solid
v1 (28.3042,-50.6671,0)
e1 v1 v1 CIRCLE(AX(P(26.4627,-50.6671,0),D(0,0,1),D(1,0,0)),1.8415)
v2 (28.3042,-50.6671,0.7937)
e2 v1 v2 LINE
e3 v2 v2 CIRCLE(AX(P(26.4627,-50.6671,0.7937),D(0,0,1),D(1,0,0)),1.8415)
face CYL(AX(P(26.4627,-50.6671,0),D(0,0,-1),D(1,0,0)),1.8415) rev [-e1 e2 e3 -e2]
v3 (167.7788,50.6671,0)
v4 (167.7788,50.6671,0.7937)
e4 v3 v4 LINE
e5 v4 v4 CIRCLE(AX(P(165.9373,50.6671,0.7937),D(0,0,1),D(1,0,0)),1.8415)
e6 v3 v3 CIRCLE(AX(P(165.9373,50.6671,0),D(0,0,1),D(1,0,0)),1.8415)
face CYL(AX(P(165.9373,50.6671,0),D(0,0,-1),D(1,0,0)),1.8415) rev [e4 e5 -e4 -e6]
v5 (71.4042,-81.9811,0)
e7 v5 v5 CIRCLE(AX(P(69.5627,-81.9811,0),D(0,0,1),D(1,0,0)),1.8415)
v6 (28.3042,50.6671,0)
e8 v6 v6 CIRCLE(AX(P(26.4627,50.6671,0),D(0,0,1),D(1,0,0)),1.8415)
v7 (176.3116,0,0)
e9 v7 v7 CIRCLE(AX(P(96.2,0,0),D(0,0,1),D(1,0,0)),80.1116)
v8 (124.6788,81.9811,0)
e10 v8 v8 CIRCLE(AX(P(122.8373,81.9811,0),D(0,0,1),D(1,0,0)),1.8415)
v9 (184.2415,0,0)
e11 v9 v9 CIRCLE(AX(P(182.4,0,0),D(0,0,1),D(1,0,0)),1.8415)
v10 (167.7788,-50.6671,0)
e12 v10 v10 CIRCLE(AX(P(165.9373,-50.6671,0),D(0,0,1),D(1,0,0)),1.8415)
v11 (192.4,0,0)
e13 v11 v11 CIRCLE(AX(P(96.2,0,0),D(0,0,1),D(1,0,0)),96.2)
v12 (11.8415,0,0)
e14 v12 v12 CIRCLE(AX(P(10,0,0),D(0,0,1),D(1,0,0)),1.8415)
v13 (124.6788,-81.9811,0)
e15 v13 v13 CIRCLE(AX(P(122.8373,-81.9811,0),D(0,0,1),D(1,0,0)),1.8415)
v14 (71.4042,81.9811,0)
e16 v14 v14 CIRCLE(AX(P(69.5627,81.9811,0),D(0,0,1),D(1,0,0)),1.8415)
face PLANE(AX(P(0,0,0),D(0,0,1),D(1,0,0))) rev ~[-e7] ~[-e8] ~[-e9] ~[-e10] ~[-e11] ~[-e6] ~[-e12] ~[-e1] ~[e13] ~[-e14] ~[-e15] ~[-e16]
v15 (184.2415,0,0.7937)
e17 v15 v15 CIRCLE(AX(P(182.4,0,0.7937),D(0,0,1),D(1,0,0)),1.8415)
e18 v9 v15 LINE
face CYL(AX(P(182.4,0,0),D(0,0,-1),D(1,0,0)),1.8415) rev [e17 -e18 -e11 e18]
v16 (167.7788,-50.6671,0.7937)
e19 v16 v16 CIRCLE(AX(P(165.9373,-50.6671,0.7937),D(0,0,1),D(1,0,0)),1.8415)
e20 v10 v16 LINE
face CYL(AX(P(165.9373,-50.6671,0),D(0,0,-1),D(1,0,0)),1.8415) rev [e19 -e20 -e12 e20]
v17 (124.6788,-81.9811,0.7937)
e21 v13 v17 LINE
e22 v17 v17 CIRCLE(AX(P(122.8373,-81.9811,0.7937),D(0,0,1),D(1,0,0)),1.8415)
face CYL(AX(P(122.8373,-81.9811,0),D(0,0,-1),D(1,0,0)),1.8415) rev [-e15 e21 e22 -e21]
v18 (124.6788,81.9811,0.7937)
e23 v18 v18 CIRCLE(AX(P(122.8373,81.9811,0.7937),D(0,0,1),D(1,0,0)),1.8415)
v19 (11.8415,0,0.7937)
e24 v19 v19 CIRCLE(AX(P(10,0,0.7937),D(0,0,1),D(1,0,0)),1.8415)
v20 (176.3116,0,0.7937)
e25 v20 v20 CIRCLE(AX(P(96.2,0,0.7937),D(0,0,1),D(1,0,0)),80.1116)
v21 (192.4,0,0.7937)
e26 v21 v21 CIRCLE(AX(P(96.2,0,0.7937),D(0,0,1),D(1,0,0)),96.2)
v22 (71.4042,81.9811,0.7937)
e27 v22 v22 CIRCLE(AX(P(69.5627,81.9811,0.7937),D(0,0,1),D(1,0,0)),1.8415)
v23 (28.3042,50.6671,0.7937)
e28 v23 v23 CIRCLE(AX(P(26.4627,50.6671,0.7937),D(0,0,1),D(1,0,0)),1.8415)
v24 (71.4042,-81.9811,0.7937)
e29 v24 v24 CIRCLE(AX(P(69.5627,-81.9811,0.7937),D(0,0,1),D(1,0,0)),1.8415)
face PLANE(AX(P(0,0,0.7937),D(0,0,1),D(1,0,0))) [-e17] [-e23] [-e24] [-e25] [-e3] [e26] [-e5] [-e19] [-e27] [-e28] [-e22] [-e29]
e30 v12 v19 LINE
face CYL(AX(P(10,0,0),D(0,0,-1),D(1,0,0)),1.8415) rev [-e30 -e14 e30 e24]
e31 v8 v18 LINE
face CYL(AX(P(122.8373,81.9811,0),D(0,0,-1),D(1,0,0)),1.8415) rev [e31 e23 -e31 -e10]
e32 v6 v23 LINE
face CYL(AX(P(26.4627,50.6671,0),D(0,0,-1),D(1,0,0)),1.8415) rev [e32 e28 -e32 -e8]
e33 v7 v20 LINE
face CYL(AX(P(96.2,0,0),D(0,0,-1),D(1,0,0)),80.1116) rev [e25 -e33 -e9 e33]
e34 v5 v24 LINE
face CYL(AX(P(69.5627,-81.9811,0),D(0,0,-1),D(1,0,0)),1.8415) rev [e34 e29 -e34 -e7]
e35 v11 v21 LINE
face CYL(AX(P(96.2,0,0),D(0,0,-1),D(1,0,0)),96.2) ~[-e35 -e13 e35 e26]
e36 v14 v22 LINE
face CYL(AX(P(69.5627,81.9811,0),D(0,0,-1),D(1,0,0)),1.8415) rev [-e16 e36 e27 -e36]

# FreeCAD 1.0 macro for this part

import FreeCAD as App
import Part
import Sketcher
Q = App.Units.Quantity

doc = App.newDocument("Part")
params = doc.addObject("Spreadsheet::Sheet", "Params")
for row, (alias, value) in enumerate([
    ("sketch1_diameter", "0.145 in"),
    ("sketch1_diameter2", "6.308 in"),
    ("pad1_length", "0.031248 in"),
], start=1):
    params.set(f"A{row}", alias)
    params.set(f"B{row}", "=" + value)
    params.setAlias(f"B{row}", alias)

body = doc.addObject("PartDesign::Body", "Body")

# Sketch on XY plane
sketch1 = doc.addObject("Sketcher::SketchObject", "Sketch")
body.addObject(sketch1)
sketch1.AttachmentSupport = (doc.XY_Plane, [""])
sketch1.MapMode = "FlatFace"
sketch1.addGeometry(Part.Circle(App.Vector(96.2, 0, 0), App.Vector(0, 0, 1), 96.2), False)
sketch1.addGeometry(Part.Circle(App.Vector(26.5, -50.7, 0), App.Vector(0, 0, 1), 1.8), False)
sketch1.addGeometry(Part.Circle(App.Vector(69.6, -82, 0), App.Vector(0, 0, 1), 1.8), False)
sketch1.addGeometry(Part.Circle(App.Vector(10, 0, 0), App.Vector(0, 0, 1), 1.8), False)
sketch1.addGeometry(Part.Circle(App.Vector(96.2, 0, 0), App.Vector(0, 0, 1), 80.1), False)
sketch1.addGeometry(Part.Circle(App.Vector(122.8, -82, 0), App.Vector(0, 0, 1), 1.8), False)
sketch1.addGeometry(Part.Circle(App.Vector(165.9, -50.7, 0), App.Vector(0, 0, 1), 1.8), False)
sketch1.addGeometry(Part.Circle(App.Vector(182.4, 0, 0), App.Vector(0, 0, 1), 1.8), False)
sketch1.addGeometry(Part.Circle(App.Vector(26.5, 50.7, 0), App.Vector(0, 0, 1), 1.8), False)
sketch1.addGeometry(Part.Circle(App.Vector(69.6, 82, 0), App.Vector(0, 0, 1), 1.8), False)
sketch1.addGeometry(Part.Circle(App.Vector(122.8, 82, 0), App.Vector(0, 0, 1), 1.8), False)
sketch1.addGeometry(Part.Circle(App.Vector(165.9, 50.7, 0), App.Vector(0, 0, 1), 1.8), False)
sketch1.addConstraint(Sketcher.Constraint("Coincident", 4, 3, 0, 3))
sketch1.addConstraint(Sketcher.Constraint("Equal", 1, 2))
sketch1.addConstraint(Sketcher.Constraint("Equal", 2, 3))
sketch1.addConstraint(Sketcher.Constraint("Equal", 3, 5))
sketch1.addConstraint(Sketcher.Constraint("Equal", 5, 6))
sketch1.addConstraint(Sketcher.Constraint("Equal", 6, 7))
sketch1.addConstraint(Sketcher.Constraint("Equal", 7, 8))
sketch1.addConstraint(Sketcher.Constraint("Equal", 8, 9))
sketch1.addConstraint(Sketcher.Constraint("Equal", 9, 10))
sketch1.addConstraint(Sketcher.Constraint("Equal", 10, 11))
sketch1.addConstraint(Sketcher.Constraint("Symmetric", 1, 3, 8, 3, -1))
sketch1.addConstraint(Sketcher.Constraint("Symmetric", 2, 3, 9, 3, -1))
sketch1.addConstraint(Sketcher.Constraint("Symmetric", 5, 3, 10, 3, -1))
sketch1.addConstraint(Sketcher.Constraint("Symmetric", 6, 3, 11, 3, -1))
sketch1.addConstraint(Sketcher.Constraint("PointOnObject", 0, 3, -1))
sketch1.addConstraint(Sketcher.Constraint("PointOnObject", 3, 3, -1))
sketch1.addConstraint(Sketcher.Constraint("PointOnObject", 7, 3, -1))
sketch1.addConstraint(Sketcher.Constraint("Horizontal", 2, 3, 5, 3))
sketch1.addConstraint(Sketcher.Constraint("Horizontal", 1, 3, 6, 3))
sketch1.addConstraint(Sketcher.Constraint("Diameter", 1, Q("0.145 in")))
sketch1.addConstraint(Sketcher.Constraint("Diameter", 4, Q("6.308 in")))
sketch1.addConstraint(Sketcher.Constraint("Diameter", 0, Q("7.5748 in")))
sketch1.addConstraint(Sketcher.Constraint("DistanceX", 3, 3, 2, 3, Q("2.345 in")))
sketch1.addConstraint(Sketcher.Constraint("DistanceX", 5, 3, 7, 3, Q("2.345 in")))
sketch1.addConstraint(Sketcher.Constraint("DistanceX", -1, 1, 0, 3, Q("3.7874 in")))
sketch1.addConstraint(Sketcher.Constraint("DistanceX", -1, 1, 2, 3, Q("2.7387 in")))
sketch1.addConstraint(Sketcher.Constraint("DistanceY", 2, 3, -1, 1, Q("3.2276 in")))
sketch1.addConstraint(Sketcher.Constraint("DistanceX", -1, 1, 7, 3, Q("7.1811 in")))
sketch1.addConstraint(Sketcher.Constraint("DistanceX", -1, 1, 1, 3, Q("26.4627 mm")))
sketch1.addConstraint(Sketcher.Constraint("DistanceY", 1, 3, -1, 1, Q("50.667 mm")))
sketch1.addConstraint(Sketcher.Constraint("DistanceX", -1, 1, 6, 3, Q("165.9373 mm")))
sketch1.setExpression("Constraints[19]", "Params.sketch1_diameter")
sketch1.setExpression("Constraints[20]", "Params.sketch1_diameter2")
pad1 = doc.addObject("PartDesign::Pad", "Pad")
body.addObject(pad1)
pad1.Profile = sketch1
pad1.setExpression("Length", "Params.pad1_length")

doc.recompute()
